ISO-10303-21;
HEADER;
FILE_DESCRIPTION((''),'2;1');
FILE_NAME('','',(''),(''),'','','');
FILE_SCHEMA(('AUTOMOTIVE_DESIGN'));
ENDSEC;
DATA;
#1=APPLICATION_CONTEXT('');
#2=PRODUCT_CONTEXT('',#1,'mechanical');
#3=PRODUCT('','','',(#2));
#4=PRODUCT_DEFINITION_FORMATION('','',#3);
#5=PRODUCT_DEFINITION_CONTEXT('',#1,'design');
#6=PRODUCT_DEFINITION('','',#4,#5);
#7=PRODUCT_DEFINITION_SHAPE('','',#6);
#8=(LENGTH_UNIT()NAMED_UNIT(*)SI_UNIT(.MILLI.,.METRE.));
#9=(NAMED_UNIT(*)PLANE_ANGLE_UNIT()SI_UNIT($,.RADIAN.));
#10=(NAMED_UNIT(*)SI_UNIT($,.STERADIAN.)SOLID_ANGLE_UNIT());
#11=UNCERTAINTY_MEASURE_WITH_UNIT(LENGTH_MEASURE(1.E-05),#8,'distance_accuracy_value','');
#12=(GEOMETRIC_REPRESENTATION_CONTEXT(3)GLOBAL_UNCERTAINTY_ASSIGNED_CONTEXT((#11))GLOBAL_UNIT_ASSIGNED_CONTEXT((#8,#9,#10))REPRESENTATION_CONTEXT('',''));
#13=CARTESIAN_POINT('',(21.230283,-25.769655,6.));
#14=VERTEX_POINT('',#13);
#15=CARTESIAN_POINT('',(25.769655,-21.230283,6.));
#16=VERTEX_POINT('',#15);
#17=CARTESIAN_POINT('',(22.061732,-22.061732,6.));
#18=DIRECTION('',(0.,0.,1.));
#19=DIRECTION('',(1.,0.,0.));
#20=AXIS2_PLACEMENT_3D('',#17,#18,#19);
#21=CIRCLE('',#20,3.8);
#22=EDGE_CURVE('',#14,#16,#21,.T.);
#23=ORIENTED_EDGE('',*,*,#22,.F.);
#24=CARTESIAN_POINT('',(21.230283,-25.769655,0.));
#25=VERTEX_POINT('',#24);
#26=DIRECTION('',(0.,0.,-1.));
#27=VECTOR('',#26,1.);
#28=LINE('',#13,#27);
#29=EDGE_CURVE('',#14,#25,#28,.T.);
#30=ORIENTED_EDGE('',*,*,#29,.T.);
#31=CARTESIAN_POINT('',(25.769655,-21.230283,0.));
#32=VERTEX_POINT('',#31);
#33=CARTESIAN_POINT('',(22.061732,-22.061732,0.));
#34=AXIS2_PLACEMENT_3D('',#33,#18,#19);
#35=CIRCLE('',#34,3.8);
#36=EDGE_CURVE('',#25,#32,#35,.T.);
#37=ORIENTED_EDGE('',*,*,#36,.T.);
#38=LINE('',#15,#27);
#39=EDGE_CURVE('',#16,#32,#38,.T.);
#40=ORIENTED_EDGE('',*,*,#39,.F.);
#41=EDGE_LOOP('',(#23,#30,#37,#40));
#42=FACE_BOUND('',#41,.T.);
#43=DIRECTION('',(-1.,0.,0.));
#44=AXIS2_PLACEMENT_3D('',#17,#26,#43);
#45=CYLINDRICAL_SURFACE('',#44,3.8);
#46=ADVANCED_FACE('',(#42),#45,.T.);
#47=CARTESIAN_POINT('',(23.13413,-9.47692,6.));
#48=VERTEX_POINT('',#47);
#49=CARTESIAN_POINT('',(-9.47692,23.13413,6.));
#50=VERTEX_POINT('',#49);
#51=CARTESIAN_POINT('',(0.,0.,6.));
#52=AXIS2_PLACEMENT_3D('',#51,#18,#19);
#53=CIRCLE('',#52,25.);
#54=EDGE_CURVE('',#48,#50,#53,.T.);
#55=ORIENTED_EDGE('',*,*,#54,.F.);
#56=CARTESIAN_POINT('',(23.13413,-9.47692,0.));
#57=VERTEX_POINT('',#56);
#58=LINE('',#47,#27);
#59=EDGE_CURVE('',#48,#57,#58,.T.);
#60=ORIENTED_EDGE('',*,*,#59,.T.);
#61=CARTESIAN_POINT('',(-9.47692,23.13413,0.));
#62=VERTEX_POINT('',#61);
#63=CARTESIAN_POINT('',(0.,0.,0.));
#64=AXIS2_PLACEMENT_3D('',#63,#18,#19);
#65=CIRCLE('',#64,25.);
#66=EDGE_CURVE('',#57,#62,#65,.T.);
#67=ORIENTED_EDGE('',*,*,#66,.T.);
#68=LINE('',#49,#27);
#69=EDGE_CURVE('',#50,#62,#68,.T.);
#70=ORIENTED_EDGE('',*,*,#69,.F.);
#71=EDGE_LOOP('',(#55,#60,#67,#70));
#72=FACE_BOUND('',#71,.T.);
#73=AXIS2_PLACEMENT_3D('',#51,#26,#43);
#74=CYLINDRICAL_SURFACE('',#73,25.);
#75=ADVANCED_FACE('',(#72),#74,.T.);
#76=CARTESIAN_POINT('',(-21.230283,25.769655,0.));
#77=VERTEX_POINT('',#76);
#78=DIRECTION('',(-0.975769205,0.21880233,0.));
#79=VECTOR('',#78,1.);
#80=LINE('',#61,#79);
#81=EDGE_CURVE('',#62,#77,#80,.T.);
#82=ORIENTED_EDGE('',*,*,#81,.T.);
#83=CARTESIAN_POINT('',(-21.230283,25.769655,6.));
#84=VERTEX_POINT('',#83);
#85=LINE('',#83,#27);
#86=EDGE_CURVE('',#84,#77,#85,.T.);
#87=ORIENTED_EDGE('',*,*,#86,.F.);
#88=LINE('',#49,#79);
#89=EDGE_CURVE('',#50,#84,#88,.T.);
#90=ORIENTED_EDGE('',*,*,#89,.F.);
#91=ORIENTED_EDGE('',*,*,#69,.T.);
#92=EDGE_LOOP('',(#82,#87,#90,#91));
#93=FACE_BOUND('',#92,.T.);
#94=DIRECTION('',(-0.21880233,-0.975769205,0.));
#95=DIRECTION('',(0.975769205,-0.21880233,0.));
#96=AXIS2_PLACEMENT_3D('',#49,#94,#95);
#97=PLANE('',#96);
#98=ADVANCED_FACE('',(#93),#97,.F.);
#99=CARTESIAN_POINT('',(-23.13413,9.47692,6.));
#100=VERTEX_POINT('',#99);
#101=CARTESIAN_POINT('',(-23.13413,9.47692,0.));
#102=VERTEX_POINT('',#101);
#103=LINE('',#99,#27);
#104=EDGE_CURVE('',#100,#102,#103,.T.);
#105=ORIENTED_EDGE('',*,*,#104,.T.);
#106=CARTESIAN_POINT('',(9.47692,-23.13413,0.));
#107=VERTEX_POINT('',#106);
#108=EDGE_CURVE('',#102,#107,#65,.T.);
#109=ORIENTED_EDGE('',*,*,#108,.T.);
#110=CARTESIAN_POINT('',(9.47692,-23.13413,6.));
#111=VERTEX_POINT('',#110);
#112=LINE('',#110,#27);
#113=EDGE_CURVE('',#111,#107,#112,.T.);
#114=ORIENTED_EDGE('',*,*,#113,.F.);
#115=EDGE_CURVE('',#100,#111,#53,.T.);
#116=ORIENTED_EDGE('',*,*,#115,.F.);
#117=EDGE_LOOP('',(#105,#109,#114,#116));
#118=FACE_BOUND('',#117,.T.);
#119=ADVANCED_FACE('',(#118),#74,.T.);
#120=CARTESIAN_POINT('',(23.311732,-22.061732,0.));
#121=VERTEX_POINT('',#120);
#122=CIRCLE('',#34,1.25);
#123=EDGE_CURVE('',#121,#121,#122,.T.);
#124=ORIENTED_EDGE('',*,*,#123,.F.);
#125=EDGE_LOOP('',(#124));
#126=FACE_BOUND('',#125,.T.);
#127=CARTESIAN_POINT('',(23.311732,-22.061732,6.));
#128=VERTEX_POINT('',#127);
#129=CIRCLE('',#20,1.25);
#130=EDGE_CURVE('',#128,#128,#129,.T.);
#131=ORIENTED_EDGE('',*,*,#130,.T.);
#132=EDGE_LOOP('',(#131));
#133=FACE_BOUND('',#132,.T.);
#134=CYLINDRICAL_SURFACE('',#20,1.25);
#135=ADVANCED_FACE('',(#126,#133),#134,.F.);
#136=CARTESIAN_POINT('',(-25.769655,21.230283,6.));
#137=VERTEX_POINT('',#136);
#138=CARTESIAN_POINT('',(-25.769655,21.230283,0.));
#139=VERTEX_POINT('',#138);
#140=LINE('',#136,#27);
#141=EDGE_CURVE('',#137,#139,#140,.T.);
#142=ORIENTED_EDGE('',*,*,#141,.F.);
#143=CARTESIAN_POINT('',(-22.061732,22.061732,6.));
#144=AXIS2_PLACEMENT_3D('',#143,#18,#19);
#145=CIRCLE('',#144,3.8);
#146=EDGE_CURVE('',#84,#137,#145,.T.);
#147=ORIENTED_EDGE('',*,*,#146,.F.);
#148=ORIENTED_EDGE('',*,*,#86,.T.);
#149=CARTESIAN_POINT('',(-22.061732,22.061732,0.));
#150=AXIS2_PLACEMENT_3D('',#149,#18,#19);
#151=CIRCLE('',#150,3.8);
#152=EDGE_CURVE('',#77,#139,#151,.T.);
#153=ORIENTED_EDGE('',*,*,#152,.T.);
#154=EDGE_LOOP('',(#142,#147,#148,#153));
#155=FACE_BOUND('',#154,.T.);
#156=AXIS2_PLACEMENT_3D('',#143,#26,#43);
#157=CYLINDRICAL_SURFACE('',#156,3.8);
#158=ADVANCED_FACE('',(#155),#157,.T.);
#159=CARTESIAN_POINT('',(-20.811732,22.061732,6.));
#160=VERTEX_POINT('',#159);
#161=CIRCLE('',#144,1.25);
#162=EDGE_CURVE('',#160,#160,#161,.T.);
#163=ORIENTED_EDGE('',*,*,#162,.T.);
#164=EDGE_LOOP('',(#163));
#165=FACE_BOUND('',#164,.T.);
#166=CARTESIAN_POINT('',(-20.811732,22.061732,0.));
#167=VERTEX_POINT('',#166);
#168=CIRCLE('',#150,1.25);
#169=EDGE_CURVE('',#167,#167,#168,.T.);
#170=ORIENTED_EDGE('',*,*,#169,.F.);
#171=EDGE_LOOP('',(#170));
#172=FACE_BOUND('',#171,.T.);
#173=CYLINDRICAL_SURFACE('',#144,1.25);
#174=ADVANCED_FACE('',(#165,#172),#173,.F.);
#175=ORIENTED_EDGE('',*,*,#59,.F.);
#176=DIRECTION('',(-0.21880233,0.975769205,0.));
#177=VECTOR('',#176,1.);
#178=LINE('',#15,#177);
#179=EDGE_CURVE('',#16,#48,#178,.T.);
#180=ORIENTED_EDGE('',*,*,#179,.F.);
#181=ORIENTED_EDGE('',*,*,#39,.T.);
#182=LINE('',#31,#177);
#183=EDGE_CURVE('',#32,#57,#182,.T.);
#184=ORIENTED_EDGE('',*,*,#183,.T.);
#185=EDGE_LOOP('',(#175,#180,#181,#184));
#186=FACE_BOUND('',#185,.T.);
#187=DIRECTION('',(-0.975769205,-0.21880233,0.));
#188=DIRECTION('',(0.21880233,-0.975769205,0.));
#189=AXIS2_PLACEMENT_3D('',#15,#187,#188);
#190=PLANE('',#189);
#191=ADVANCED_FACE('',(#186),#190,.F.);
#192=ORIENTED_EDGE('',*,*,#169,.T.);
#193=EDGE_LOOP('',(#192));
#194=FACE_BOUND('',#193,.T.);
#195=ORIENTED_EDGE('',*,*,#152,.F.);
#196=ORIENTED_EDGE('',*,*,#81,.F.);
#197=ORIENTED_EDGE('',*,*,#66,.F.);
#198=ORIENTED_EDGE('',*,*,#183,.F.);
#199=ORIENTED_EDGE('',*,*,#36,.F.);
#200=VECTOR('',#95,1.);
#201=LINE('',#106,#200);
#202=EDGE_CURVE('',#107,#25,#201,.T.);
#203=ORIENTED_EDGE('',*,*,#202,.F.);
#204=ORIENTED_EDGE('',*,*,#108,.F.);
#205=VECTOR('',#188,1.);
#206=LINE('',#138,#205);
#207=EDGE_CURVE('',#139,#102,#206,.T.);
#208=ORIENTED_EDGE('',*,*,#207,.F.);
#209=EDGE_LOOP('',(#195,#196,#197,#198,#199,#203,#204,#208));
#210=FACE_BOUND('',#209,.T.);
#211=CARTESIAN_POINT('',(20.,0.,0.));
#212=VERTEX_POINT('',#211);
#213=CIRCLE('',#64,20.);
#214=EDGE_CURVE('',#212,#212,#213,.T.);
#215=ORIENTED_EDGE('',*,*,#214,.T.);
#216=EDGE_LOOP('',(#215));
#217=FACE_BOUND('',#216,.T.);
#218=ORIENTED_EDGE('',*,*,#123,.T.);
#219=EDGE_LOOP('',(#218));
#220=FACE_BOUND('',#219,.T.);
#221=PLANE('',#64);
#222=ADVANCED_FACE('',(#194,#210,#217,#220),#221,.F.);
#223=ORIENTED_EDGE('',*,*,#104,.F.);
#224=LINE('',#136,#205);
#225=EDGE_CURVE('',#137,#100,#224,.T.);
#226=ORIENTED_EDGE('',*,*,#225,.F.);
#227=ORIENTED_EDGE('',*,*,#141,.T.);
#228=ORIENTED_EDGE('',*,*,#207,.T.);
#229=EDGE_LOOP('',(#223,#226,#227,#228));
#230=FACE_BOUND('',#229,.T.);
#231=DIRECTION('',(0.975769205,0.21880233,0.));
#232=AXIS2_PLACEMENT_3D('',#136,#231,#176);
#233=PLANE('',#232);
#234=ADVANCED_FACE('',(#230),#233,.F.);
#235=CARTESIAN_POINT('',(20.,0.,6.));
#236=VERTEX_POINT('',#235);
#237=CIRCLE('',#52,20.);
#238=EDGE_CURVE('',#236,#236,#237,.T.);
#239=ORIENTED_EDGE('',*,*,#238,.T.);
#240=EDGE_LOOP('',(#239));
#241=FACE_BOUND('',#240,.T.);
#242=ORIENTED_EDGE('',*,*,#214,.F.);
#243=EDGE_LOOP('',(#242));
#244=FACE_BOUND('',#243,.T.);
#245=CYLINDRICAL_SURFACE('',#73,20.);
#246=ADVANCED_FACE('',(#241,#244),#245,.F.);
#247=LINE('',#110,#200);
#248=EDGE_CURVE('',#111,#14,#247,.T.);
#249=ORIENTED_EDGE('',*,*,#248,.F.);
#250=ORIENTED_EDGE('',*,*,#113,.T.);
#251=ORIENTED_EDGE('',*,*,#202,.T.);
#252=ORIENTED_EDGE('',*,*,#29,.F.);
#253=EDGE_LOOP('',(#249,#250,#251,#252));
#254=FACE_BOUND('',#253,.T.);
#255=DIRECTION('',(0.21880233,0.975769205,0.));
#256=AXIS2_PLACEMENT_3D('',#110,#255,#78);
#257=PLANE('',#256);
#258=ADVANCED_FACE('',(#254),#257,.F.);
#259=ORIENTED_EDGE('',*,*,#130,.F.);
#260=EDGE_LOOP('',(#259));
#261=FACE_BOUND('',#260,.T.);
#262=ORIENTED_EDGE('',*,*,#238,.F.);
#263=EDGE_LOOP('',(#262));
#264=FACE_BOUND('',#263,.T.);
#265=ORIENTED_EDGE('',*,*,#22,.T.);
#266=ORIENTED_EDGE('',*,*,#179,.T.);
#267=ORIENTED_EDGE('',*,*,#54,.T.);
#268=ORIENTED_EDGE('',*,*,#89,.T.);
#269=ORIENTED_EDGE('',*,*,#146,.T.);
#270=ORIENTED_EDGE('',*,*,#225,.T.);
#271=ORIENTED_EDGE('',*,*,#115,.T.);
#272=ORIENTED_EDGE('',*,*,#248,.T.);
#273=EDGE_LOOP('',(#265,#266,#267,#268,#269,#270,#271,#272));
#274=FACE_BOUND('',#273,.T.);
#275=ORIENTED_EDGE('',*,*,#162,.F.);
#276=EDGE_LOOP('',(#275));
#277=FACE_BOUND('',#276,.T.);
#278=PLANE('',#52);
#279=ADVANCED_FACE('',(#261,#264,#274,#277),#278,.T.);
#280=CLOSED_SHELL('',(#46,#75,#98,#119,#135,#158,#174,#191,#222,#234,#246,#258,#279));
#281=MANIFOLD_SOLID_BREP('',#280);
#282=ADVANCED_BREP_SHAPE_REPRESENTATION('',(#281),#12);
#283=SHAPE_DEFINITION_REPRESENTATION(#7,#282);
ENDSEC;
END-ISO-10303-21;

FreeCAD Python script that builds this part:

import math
import FreeCAD as App
import Part
import Sketcher
from FreeCAD import Vector
Q = App.Units.Quantity

doc = App.newDocument("Part")
params = doc.addObject("Spreadsheet::Sheet", "Params")
for row, (alias, value) in enumerate([
    ("sketch1_diameter", "40 mm"),
    ("sketch1_radius", "25 mm"),
    ("sketch1_radius2", "3.8 mm"),
    ("pad1_length", "6 mm"),
    ("sketch2_diameter", "2.5 mm"),
    ("hole_diameter", "2.5 mm"),
], start=1):
    params.set(f"A{row}", alias)
    params.set(f"B{row}", "=" + value)
    params.setAlias(f"B{row}", alias)

body = doc.addObject("PartDesign::Body", "Body")

# Sketch on XY plane
sketch1 = doc.addObject("Sketcher::SketchObject", "Sketch")
body.addObject(sketch1)
sketch1.AttachmentSupport = (doc.XY_Plane, [""])
sketch1.MapMode = "FlatFace"
sketch1.addGeometry([
    Part.LineSegment(Vector(9.47692, -23.13413, 0), Vector(21.230283, -25.769655, 0)),  # 0
    Part.ArcOfCircle(Part.Circle(Vector(22.061732, -22.061732, 0), Vector(0, 0, 1), 3.8), math.radians(-102.638698), math.radians(12.638698)),  # 1
    Part.LineSegment(Vector(25.769655, -21.230283, 0), Vector(23.13413, -9.47692, 0)),  # 2
    Part.ArcOfCircle(Part.Circle(Vector(0, 0, 0), Vector(0, 0, 1), 25), math.radians(-22.276508), math.radians(112.276508)),  # 3
    Part.LineSegment(Vector(-9.47692, 23.13413, 0), Vector(-21.230283, 25.769655, 0)),  # 4
    Part.ArcOfCircle(Part.Circle(Vector(-22.061732, 22.061732, 0), Vector(0, 0, 1), 3.8), math.radians(77.361302), math.radians(192.638698)),  # 5
    Part.LineSegment(Vector(-25.769655, 21.230283, 0), Vector(-23.13413, 9.47692, 0)),  # 6
    Part.ArcOfCircle(Part.Circle(Vector(0, 0, 0), Vector(0, 0, 1), 25), math.radians(157.723492), math.radians(292.276508)),  # 7
    Part.Circle(Vector(0, 0, 0), Vector(0, 0, 1), 20),  # 8
], False)
sketch1.addConstraint([
    Sketcher.Constraint("Tangent", 0, 2, 1, 1),
    Sketcher.Constraint("Tangent", 1, 2, 2, 1),
    Sketcher.Constraint("Coincident", 2, 2, 3, 1),
    Sketcher.Constraint("Coincident", 3, 2, 4, 1),
    Sketcher.Constraint("Tangent", 4, 2, 5, 1),
    Sketcher.Constraint("Tangent", 5, 2, 6, 1),
    Sketcher.Constraint("Coincident", 6, 2, 7, 1),
    Sketcher.Constraint("Coincident", 7, 2, 0, 1),
    Sketcher.Constraint("Coincident", 3, 3, -1, 1),
    Sketcher.Constraint("Coincident", 7, 3, -1, 1),
    Sketcher.Constraint("Coincident", 8, 3, -1, 1),
    Sketcher.Constraint("Equal", 1, 5),
    Sketcher.Constraint("Equal", 3, 7),
    Sketcher.Constraint("Symmetric", 1, 3, 5, 3, -1, 1),
    Sketcher.Constraint("Parallel", 0, 4),
    Sketcher.Constraint("Parallel", 2, 6),
    Sketcher.Constraint("Equal", 0, 2),
    Sketcher.Constraint("Diameter", 8, Q("40 mm")),
    Sketcher.Constraint("Radius", 3, Q("25 mm")),
    Sketcher.Constraint("Radius", 1, Q("3.8 mm")),
    Sketcher.Constraint("DistanceX", 1, 3, 2, 2, Q("1.072399 mm")),
    Sketcher.Constraint("DistanceY", 5, 3, 3, 2, Q("1.072399 mm")),
    Sketcher.Constraint("Distance", 0, Q("12.045229 mm")),
])
sketch1.setExpression("Constraints[17]", "Params.sketch1_diameter")
sketch1.setExpression("Constraints[18]", "Params.sketch1_radius")
sketch1.setExpression("Constraints[19]", "Params.sketch1_radius2")
pad1 = doc.addObject("PartDesign::Pad", "Pad")
body.addObject(pad1)
pad1.Profile = sketch1
pad1.setExpression("Length", "Params.pad1_length")

# Sketch on XY plane
sketch2 = doc.addObject("Sketcher::SketchObject", "Sketch001")
body.addObject(sketch2)
sketch2.AttachmentSupport = (doc.XY_Plane, [""])
sketch2.MapMode = "FlatFace"
sketch2.AttachmentOffset = App.Placement(Vector(0, 0, 6), App.Rotation())
sketch2.addGeometry([
    Part.Circle(Vector(-22.061732, 22.061732, 0), Vector(0, 0, 1), 1.25),
    Part.Circle(Vector(22.061732, -22.061732, 0), Vector(0, 0, 1), 1.25),
], False)
sketch2.addConstraint([
    Sketcher.Constraint("Equal", 0, 1),
    Sketcher.Constraint("Symmetric", 0, 3, 1, 3, -1, 1),
    Sketcher.Constraint("Diameter", 0, Q("2.5 mm")),
    Sketcher.Constraint("DistanceX", 0, 3, -1, 1, Q("22.061732 mm")),
    Sketcher.Constraint("DistanceY", -1, 1, 0, 3, Q("22.061732 mm")),
])
sketch2.setExpression("Constraints[2]", "Params.sketch2_diameter")
doc.recompute()
hole = doc.addObject("PartDesign::Hole", "Hole")
body.addObject(hole)
hole.Profile = sketch2
hole.ThreadType = "None"
hole.setExpression("Diameter", "Params.hole_diameter")
hole.DepthType = "ThroughAll"

doc.recompute()
